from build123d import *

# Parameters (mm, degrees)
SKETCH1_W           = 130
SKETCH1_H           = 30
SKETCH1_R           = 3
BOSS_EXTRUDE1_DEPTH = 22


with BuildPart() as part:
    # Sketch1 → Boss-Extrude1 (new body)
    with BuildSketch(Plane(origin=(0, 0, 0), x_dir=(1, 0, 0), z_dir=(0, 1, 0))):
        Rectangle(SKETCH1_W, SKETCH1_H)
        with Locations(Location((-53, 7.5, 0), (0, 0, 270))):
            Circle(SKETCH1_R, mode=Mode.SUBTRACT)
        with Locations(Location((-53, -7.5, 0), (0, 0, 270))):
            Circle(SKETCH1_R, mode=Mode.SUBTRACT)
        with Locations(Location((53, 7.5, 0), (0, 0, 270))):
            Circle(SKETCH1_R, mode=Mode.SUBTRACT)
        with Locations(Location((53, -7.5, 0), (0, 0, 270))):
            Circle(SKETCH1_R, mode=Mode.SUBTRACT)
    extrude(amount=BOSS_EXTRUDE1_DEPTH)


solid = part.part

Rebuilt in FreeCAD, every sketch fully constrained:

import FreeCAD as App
import Part
import Sketcher
Q = App.Units.Quantity

doc = App.newDocument("Part")
body = doc.addObject("PartDesign::Body", "Body")

# Sketch on XZ plane
sketch1 = body.newObject("Sketcher::SketchObject", "Sketch")
sketch1.AttachmentSupport = (doc.getObject("XZ_Plane"), [""])
sketch1.MapMode = "FlatFace"
sketch1.addGeometry([
    Part.LineSegment(App.Vector(-65, -15, 0), App.Vector(-65, 15, 0)),  # 0
    Part.LineSegment(App.Vector(-65, 15, 0), App.Vector(65, 15, 0)),  # 1
    Part.LineSegment(App.Vector(65, 15, 0), App.Vector(65, -15, 0)),  # 2
    Part.LineSegment(App.Vector(65, -15, 0), App.Vector(-65, -15, 0)),  # 3
    Part.Circle(App.Vector(-53, 7.5, 0), App.Vector(0, 0, 1), 3),  # 4
    Part.Circle(App.Vector(53, 7.5, 0), App.Vector(0, 0, 1), 3),  # 5
    Part.Circle(App.Vector(-53, -7.5, 0), App.Vector(0, 0, 1), 3),  # 6
    Part.Circle(App.Vector(53, -7.5, 0), App.Vector(0, 0, 1), 3),  # 7
], False)
sketch1.addConstraint([
    Sketcher.Constraint("Coincident", 0, 2, 1, 1),
    Sketcher.Constraint("Coincident", 1, 2, 2, 1),
    Sketcher.Constraint("Coincident", 2, 2, 3, 1),
    Sketcher.Constraint("Coincident", 3, 2, 0, 1),
    Sketcher.Constraint("Vertical", 0),
    Sketcher.Constraint("Horizontal", 1),
    Sketcher.Constraint("Vertical", 2),
    Sketcher.Constraint("Horizontal", 3),
    Sketcher.Constraint("Equal", 4, 5),
    Sketcher.Constraint("Equal", 5, 6),
    Sketcher.Constraint("Equal", 6, 7),
    Sketcher.Constraint("Symmetric", 5, 3, 6, 3, -1, 1),
    Sketcher.Constraint("Symmetric", 4, 3, 7, 3, -1, 1),
    Sketcher.Constraint("Symmetric", 0, 2, 2, 2, -1, 1),
    Sketcher.Constraint("Symmetric", 4, 3, 5, 3, -2),
    Sketcher.Constraint("Diameter", 4, Q("6 mm")),
    Sketcher.Constraint("DistanceX", 1, 1, 1, 2, Q("130 mm")),
    Sketcher.Constraint("DistanceY", 0, 1, 0, 2, Q("30 mm")),
    Sketcher.Constraint("DistanceX", 4, 3, -1, 1, Q("53 mm")),
    Sketcher.Constraint("DistanceY", 6, 3, 4, 3, Q("15 mm")),
])
pad1 = body.newObject("PartDesign::Pad", "Pad")
pad1.Profile = sketch1
pad1.Length = 22
pad1.Reversed = True

doc.recompute()
